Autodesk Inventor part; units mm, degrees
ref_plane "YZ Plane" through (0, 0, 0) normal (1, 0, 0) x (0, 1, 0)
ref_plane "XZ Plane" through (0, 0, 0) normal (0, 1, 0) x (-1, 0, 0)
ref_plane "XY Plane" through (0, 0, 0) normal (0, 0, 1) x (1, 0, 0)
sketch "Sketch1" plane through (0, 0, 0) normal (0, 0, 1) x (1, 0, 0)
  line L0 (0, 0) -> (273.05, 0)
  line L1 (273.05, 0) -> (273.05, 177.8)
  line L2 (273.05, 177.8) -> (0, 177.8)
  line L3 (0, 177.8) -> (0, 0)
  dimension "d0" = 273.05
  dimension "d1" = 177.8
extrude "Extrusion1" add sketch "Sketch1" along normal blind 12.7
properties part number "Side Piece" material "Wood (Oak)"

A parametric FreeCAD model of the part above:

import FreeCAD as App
import Part
import Sketcher

V = App.Vector
Q = App.Units.Quantity

doc = App.newDocument("Part")
body = doc.addObject("PartDesign::Body", "Body")

# Sketch on XY plane
sketch1 = body.newObject("Sketcher::SketchObject", "Sketch")
sketch1.AttachmentSupport = (doc.getObject("XY_Plane"), [""])
sketch1.MapMode = "FlatFace"
sketch1.addGeometry([
    Part.LineSegment(V(0, 178, 0), V(0, 0, 0)),
    Part.LineSegment(V(0, 0, 0), V(273, 0, 0)),
    Part.LineSegment(V(273, 0, 0), V(273, 178, 0)),
    Part.LineSegment(V(273, 178, 0), V(0, 178, 0)),
], False)
sketch1.addConstraint([
    Sketcher.Constraint("Coincident", 0, 2, 1, 1),
    Sketcher.Constraint("Coincident", 1, 2, 2, 1),
    Sketcher.Constraint("Coincident", 2, 2, 3, 1),
    Sketcher.Constraint("Coincident", 3, 2, 0, 1),
    Sketcher.Constraint("Vertical", 0),
    Sketcher.Constraint("Horizontal", 1),
    Sketcher.Constraint("Vertical", 2),
    Sketcher.Constraint("Horizontal", 3),
    Sketcher.Constraint("Coincident", 0, 2, -1, 1),
    Sketcher.Constraint("DistanceY", 0, 2, 0, 1, Q("7 in")),
    Sketcher.Constraint("DistanceX", 1, 1, 1, 2, Q("10.75 in")),
])
pad1 = body.newObject("PartDesign::Pad", "Pad")
pad1.Profile = sketch1
pad1.Length = Q("0.5 in")

doc.recompute()
